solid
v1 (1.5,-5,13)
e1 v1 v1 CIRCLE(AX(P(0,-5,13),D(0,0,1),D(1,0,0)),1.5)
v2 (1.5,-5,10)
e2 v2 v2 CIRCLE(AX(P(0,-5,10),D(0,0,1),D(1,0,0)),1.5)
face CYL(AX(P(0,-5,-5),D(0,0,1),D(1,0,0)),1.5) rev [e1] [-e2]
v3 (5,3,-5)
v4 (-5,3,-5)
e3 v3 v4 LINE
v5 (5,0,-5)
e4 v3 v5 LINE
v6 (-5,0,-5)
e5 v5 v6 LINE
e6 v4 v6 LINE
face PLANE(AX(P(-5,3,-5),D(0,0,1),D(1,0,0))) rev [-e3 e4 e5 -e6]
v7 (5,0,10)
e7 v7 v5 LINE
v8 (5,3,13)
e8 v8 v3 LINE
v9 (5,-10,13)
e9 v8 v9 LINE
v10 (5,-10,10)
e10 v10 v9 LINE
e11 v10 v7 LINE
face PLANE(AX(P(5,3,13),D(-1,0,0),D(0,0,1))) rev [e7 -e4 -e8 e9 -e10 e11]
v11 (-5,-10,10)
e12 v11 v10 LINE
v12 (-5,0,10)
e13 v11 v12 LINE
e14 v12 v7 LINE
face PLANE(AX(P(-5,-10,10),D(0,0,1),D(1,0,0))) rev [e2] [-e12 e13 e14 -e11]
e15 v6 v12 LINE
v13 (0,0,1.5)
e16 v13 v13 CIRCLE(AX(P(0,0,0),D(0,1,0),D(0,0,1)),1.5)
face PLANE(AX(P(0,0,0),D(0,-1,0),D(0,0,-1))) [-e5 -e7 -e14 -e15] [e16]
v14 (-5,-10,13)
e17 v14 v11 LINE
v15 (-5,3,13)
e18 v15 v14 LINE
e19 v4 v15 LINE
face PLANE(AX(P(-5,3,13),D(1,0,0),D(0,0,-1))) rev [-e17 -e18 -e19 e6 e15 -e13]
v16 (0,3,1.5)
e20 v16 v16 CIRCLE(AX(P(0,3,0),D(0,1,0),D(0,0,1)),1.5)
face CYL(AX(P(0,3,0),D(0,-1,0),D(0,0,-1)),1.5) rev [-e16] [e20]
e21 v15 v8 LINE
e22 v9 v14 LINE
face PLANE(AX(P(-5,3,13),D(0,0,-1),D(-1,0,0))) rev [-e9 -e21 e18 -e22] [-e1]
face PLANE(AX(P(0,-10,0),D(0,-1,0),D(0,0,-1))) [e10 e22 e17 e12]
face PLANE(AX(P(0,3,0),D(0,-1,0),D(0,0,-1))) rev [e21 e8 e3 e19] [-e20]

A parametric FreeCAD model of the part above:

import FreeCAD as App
import Part
import Sketcher

V = App.Vector
Q = App.Units.Quantity


def add_polygon(sketch, points):
    """Adds a closed chain of lines whose ends are joined by coincident constraints."""
    first, n = sketch.GeometryCount, len(points)
    for a, b in zip(points, points[1:] + points[:1]):
        sketch.addGeometry(Part.LineSegment(App.Vector(*a, 0), App.Vector(*b, 0)), False)
    for i in range(n):
        sketch.addConstraint(Sketcher.Constraint("Coincident", first + i, 2, first + (i + 1) % n, 1))

doc = App.newDocument("Part")
body = doc.addObject("PartDesign::Body", "Body")

# Sketch on XZ plane
sketch1 = body.newObject("Sketcher::SketchObject", "Sketch")
sketch1.AttachmentSupport = (doc.getObject("XZ_Plane"), [""])
sketch1.MapMode = "FlatFace"
add_polygon(sketch1, [(-5, -5), (-5, 13), (5, 13), (5, -5)])  # lines 0-3
sketch1.addGeometry(Part.Circle(V(0, 0, 0), V(0, 0, 1), 1.5), False)  # 4
sketch1.addConstraint(Sketcher.Constraint("Vertical", 0))
sketch1.addConstraint(Sketcher.Constraint("Horizontal", 1))
sketch1.addConstraint(Sketcher.Constraint("Vertical", 2))
sketch1.addConstraint(Sketcher.Constraint("Horizontal", 3))
sketch1.addConstraint(Sketcher.Constraint("Coincident", 4, 3, -1, 1))
sketch1.addConstraint(Sketcher.Constraint("Diameter", 4, Q("3 mm")))
sketch1.addConstraint(Sketcher.Constraint("DistanceX", 1, 1, 1, 2, Q("10 mm")))
sketch1.addConstraint(Sketcher.Constraint("DistanceY", 0, 1, 0, 2, Q("18 mm")))
sketch1.addConstraint(Sketcher.Constraint("DistanceX", 0, 2, -1, 1, Q("5 mm")))
sketch1.addConstraint(Sketcher.Constraint("DistanceY", -1, 1, 0, 2, Q("13 mm")))
pad1 = body.newObject("PartDesign::Pad", "Pad")
pad1.Profile = sketch1
pad1.Length = 3
pad1.Reversed = True

# Sketch on XZ plane
sketch2 = body.newObject("Sketcher::SketchObject", "Sketch001")
sketch2.AttachmentSupport = (doc.getObject("XZ_Plane"), [""])
sketch2.MapMode = "FlatFace"
add_polygon(sketch2, [(-5, 13), (-5, 10), (5, 10), (5, 13)])  # lines 0-3
sketch2.addConstraint(Sketcher.Constraint("Vertical", 0))
sketch2.addConstraint(Sketcher.Constraint("Horizontal", 1))
sketch2.addConstraint(Sketcher.Constraint("Vertical", 2))
sketch2.addConstraint(Sketcher.Constraint("Horizontal", 3))
sketch2.addConstraint(Sketcher.Constraint("DistanceX", 1, 1, 1, 2, Q("10 mm")))
sketch2.addConstraint(Sketcher.Constraint("DistanceY", 0, 2, 0, 1, Q("3 mm")))
sketch2.addConstraint(Sketcher.Constraint("DistanceX", 0, 2, -1, 1, Q("5 mm")))
sketch2.addConstraint(Sketcher.Constraint("DistanceY", -1, 1, 0, 2, Q("10 mm")))
pad2 = body.newObject("PartDesign::Pad", "Pad001")
pad2.Profile = sketch2
pad2.Length = 10

# Sketch on XY plane
sketch3 = body.newObject("Sketcher::SketchObject", "Sketch002")
sketch3.AttachmentSupport = (doc.getObject("XY_Plane"), [""])
sketch3.MapMode = "FlatFace"
sketch3.AttachmentOffset = App.Placement(V(0, 0, 13), App.Rotation())
sketch3.addGeometry(Part.Circle(V(0, -5, 0), V(0, 0, 1), 1.5), False)
sketch3.addConstraint(Sketcher.Constraint("PointOnObject", 0, 3, -2))
sketch3.addConstraint(Sketcher.Constraint("Diameter", 0, Q("3 mm")))
sketch3.addConstraint(Sketcher.Constraint("DistanceY", 0, 3, -1, 1, Q("5 mm")))
pocket1 = body.newObject("PartDesign::Pocket", "Pocket")
pocket1.Profile = sketch3
pocket1.Type = "ThroughAll"

doc.recompute()
